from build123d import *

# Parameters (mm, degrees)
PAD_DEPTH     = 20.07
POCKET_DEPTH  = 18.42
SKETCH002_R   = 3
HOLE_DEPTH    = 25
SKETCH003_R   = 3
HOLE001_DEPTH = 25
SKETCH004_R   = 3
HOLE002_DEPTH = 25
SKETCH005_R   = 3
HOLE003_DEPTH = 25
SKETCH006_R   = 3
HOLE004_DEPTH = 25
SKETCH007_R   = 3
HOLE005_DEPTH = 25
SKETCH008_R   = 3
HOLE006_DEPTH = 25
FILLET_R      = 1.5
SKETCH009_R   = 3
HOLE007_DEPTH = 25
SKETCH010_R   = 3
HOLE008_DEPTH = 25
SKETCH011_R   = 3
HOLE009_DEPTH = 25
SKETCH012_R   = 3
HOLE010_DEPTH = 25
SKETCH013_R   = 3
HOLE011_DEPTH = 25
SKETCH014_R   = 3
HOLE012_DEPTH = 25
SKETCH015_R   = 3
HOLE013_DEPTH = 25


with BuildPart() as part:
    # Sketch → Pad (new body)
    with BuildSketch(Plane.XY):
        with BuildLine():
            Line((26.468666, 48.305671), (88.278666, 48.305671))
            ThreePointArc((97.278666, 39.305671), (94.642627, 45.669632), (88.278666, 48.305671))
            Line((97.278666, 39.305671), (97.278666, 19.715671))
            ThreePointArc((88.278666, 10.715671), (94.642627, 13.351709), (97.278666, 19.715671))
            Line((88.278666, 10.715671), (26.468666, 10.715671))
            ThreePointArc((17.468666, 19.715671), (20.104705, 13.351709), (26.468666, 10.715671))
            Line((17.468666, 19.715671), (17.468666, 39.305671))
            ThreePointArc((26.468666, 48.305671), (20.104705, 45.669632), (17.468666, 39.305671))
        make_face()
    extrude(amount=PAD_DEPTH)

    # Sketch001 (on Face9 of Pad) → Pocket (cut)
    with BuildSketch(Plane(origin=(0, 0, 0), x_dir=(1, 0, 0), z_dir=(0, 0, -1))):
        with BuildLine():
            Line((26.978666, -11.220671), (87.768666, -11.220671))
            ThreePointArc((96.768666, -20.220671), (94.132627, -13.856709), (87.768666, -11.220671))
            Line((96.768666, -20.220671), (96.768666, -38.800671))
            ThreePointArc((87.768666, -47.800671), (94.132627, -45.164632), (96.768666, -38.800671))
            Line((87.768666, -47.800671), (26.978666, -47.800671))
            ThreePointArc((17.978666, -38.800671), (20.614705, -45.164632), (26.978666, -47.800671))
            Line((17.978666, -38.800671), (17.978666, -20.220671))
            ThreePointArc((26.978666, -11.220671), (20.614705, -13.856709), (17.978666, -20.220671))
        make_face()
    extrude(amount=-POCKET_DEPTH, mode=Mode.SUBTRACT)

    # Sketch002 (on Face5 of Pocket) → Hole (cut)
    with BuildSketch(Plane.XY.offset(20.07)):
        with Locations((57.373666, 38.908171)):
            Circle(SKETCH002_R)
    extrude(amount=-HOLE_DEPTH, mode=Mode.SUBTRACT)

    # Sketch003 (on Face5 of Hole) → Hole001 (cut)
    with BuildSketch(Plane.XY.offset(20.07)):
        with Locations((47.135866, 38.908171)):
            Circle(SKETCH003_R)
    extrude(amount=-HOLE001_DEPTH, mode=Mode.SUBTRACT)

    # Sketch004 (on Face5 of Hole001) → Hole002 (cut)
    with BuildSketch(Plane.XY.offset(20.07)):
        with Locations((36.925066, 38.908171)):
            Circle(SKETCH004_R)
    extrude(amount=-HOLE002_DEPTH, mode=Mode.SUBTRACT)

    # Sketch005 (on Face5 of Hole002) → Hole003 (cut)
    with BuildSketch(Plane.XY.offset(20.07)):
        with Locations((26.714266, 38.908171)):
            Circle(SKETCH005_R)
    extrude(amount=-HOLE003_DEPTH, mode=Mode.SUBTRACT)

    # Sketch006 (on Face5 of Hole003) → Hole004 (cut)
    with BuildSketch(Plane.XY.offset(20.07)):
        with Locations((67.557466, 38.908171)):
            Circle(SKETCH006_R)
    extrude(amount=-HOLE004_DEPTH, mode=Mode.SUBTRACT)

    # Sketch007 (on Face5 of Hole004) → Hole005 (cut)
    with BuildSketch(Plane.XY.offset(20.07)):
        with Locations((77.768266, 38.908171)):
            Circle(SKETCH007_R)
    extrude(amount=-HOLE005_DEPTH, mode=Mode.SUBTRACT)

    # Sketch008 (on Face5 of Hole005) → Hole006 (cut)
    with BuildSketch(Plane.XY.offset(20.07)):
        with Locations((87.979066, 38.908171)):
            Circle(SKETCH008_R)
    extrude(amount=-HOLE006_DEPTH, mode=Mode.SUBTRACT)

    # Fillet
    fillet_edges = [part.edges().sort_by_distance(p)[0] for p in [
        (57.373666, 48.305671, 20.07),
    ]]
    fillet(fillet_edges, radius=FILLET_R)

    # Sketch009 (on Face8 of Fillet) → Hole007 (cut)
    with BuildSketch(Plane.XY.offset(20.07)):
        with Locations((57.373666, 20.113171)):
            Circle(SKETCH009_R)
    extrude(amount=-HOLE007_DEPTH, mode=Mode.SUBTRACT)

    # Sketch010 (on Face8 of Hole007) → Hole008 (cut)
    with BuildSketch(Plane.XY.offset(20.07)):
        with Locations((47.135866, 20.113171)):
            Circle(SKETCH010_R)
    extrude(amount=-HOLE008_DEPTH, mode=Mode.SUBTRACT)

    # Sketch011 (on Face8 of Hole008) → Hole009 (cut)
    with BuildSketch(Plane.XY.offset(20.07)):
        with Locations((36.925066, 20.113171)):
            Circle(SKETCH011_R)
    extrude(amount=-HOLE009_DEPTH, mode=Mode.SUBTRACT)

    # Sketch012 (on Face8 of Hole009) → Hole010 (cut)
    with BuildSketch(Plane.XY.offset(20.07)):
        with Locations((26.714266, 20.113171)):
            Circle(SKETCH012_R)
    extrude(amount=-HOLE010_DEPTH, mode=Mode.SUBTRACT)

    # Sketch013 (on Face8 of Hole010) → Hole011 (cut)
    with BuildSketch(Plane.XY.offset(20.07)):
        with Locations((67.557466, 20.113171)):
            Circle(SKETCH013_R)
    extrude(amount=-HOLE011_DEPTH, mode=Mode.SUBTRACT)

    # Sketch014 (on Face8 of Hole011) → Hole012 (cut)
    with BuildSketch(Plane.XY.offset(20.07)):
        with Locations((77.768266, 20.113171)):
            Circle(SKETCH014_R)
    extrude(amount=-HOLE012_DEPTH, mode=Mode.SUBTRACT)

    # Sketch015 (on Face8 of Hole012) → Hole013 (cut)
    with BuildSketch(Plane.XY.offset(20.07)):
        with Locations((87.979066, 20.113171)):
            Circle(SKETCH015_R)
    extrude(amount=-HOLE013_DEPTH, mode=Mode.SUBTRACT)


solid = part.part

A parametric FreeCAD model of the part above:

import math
import FreeCAD as App
import Part
import Sketcher
from FreeCAD import Vector
Q = App.Units.Quantity


def edges_at(feature, points):
    """Names of the edges that pass closest to the given points."""
    edges = feature.Shape.Edges
    near = lambda p: min(range(len(edges)), key=lambda i: edges[i].distToShape(Part.Vertex(*p))[0])
    return sorted({f"Edge{near(p) + 1}" for p in points})

doc = App.newDocument("Part")
body = doc.addObject("PartDesign::Body", "Body")

sketch1 = doc.addObject("Sketcher::SketchObject", "Sketch")
body.addObject(sketch1)
sketch1.AttachmentSupport = (doc.XY_Plane, [""])
sketch1.MapMode = "FlatFace"
sketch1.addGeometry([
    Part.LineSegment(Vector(88, 48, 0), Vector(26, 48, 0)),
    Part.ArcOfCircle(Part.Circle(Vector(26, 39, 0), Vector(0, 0, 1), 9), math.radians(90), math.radians(180)),
    Part.LineSegment(Vector(17, 39, 0), Vector(17, 20, 0)),
    Part.ArcOfCircle(Part.Circle(Vector(26, 20, 0), Vector(0, 0, 1), 9), math.radians(180), math.radians(270)),
    Part.LineSegment(Vector(26, 11, 0), Vector(88, 11, 0)),
    Part.ArcOfCircle(Part.Circle(Vector(88, 20, 0), Vector(0, 0, 1), 9), math.radians(-90), math.radians(0)),
    Part.LineSegment(Vector(97, 20, 0), Vector(97, 39, 0)),
    Part.ArcOfCircle(Part.Circle(Vector(88, 39, 0), Vector(0, 0, 1), 9), math.radians(0), math.radians(90)),
], False)
sketch1.addConstraint([
    Sketcher.Constraint("Tangent", 0, 2, 1, 1),
    Sketcher.Constraint("Tangent", 1, 2, 2, 1),
    Sketcher.Constraint("Tangent", 2, 2, 3, 1),
    Sketcher.Constraint("Tangent", 3, 2, 4, 1),
    Sketcher.Constraint("Tangent", 4, 2, 5, 1),
    Sketcher.Constraint("Tangent", 5, 2, 6, 1),
    Sketcher.Constraint("Tangent", 6, 2, 7, 1),
    Sketcher.Constraint("Tangent", 7, 2, 0, 1),
    Sketcher.Constraint("Horizontal", 0),
    Sketcher.Constraint("Vertical", 2),
    Sketcher.Constraint("Horizontal", 4),
    Sketcher.Constraint("Vertical", 6),
    Sketcher.Constraint("Equal", 1, 3),
    Sketcher.Constraint("Equal", 3, 5),
    Sketcher.Constraint("Equal", 5, 7),
    Sketcher.Constraint("Radius", 1, Q("9 mm")),
    Sketcher.Constraint("DistanceX", 0, 2, 0, 1, Q("61.81 mm")),
    Sketcher.Constraint("DistanceY", 2, 2, 2, 1, Q("19.59 mm")),
    Sketcher.Constraint("DistanceY", -1, 1, 1, 3, Q("39.305671 mm")),
    Sketcher.Constraint("DistanceX", -1, 1, 1, 3, Q("26.468666 mm")),
])
pad1 = doc.addObject("PartDesign::Pad", "Pad")
body.addObject(pad1)
pad1.Profile = sketch1
pad1.Length = 20.07

sketch2 = doc.addObject("Sketcher::SketchObject", "Sketch001")
body.addObject(sketch2)
sketch2.AttachmentSupport = (doc.XY_Plane, [""])
sketch2.MapMode = "FlatFace"
sketch2.addGeometry([
    Part.LineSegment(Vector(88, 11, 0), Vector(27, 11, 0)),
    Part.ArcOfCircle(Part.Circle(Vector(27, 20, 0), Vector(0, 0, 1), 9), math.radians(180), math.radians(270)),
    Part.LineSegment(Vector(18, 20, 0), Vector(18, 39, 0)),
    Part.ArcOfCircle(Part.Circle(Vector(27, 39, 0), Vector(0, 0, 1), 9), math.radians(90), math.radians(180)),
    Part.LineSegment(Vector(27, 48, 0), Vector(88, 48, 0)),
    Part.ArcOfCircle(Part.Circle(Vector(88, 39, 0), Vector(0, 0, 1), 9), math.radians(0), math.radians(90)),
    Part.LineSegment(Vector(97, 39, 0), Vector(97, 20, 0)),
    Part.ArcOfCircle(Part.Circle(Vector(88, 20, 0), Vector(0, 0, 1), 9), math.radians(-90), math.radians(0)),
], False)
sketch2.addConstraint([
    Sketcher.Constraint("Tangent", 0, 2, 1, 2),
    Sketcher.Constraint("Tangent", 1, 1, 2, 1),
    Sketcher.Constraint("Tangent", 2, 2, 3, 2),
    Sketcher.Constraint("Tangent", 3, 1, 4, 1),
    Sketcher.Constraint("Tangent", 4, 2, 5, 2),
    Sketcher.Constraint("Tangent", 5, 1, 6, 1),
    Sketcher.Constraint("Tangent", 6, 2, 7, 2),
    Sketcher.Constraint("Tangent", 7, 1, 0, 1),
    Sketcher.Constraint("Horizontal", 0),
    Sketcher.Constraint("Vertical", 2),
    Sketcher.Constraint("Horizontal", 4),
    Sketcher.Constraint("Vertical", 6),
    Sketcher.Constraint("Equal", 1, 3),
    Sketcher.Constraint("Equal", 3, 5),
    Sketcher.Constraint("Equal", 5, 7),
    Sketcher.Constraint("Radius", 1, Q("8.999998 mm")),
    Sketcher.Constraint("DistanceX", 0, 2, 0, 1, Q("60.79 mm")),
    Sketcher.Constraint("DistanceY", 2, 1, 2, 2, Q("18.58 mm")),
    Sketcher.Constraint("DistanceY", -1, 1, 1, 3, Q("20.220669 mm")),
    Sketcher.Constraint("DistanceX", -1, 1, 1, 3, Q("26.978664 mm")),
])
pocket1 = doc.addObject("PartDesign::Pocket", "Pocket")
body.addObject(pocket1)
pocket1.Profile = sketch2
pocket1.Length = 18.42
pocket1.Reversed = True

sketch3 = doc.addObject("Sketcher::SketchObject", "Sketch002")
body.addObject(sketch3)
sketch3.AttachmentSupport = (doc.XY_Plane, [""])
sketch3.MapMode = "FlatFace"
sketch3.AttachmentOffset = App.Placement(Vector(0, 0, 20.07), App.Rotation())
sketch3.addGeometry(Part.Circle(Vector(57.4, 38.9, 0), Vector(0, 0, 1), 3), False)
sketch3.addConstraint([
    Sketcher.Constraint("Diameter", 0, Q("6 mm")),
    Sketcher.Constraint("DistanceY", -1, 1, 0, 3, Q("38.908171 mm")),
    Sketcher.Constraint("DistanceX", -1, 1, 0, 3, Q("57.373666 mm")),
])
pocket2 = doc.addObject("PartDesign::Pocket", "Pocket001")
body.addObject(pocket2)
pocket2.Profile = sketch3
pocket2.Length = 25

sketch4 = doc.addObject("Sketcher::SketchObject", "Sketch003")
body.addObject(sketch4)
sketch4.AttachmentSupport = (doc.XY_Plane, [""])
sketch4.MapMode = "FlatFace"
sketch4.AttachmentOffset = App.Placement(Vector(0, 0, 20.07), App.Rotation())
sketch4.addGeometry(Part.Circle(Vector(47.1, 38.9, 0), Vector(0, 0, 1), 3), False)
sketch4.addConstraint([
    Sketcher.Constraint("Diameter", 0, Q("6 mm")),
    Sketcher.Constraint("DistanceY", -1, 1, 0, 3, Q("38.908171 mm")),
    Sketcher.Constraint("DistanceX", -1, 1, 0, 3, Q("47.135866 mm")),
])
pocket3 = doc.addObject("PartDesign::Pocket", "Pocket002")
body.addObject(pocket3)
pocket3.Profile = sketch4
pocket3.Length = 25

sketch5 = doc.addObject("Sketcher::SketchObject", "Sketch004")
body.addObject(sketch5)
sketch5.AttachmentSupport = (doc.XY_Plane, [""])
sketch5.MapMode = "FlatFace"
sketch5.AttachmentOffset = App.Placement(Vector(0, 0, 20.07), App.Rotation())
sketch5.addGeometry(Part.Circle(Vector(36.9, 38.9, 0), Vector(0, 0, 1), 3), False)
sketch5.addConstraint([
    Sketcher.Constraint("Diameter", 0, Q("6 mm")),
    Sketcher.Constraint("DistanceY", -1, 1, 0, 3, Q("38.908171 mm")),
    Sketcher.Constraint("DistanceX", -1, 1, 0, 3, Q("36.925066 mm")),
])
pocket4 = doc.addObject("PartDesign::Pocket", "Pocket003")
body.addObject(pocket4)
pocket4.Profile = sketch5
pocket4.Length = 25

sketch6 = doc.addObject("Sketcher::SketchObject", "Sketch005")
body.addObject(sketch6)
sketch6.AttachmentSupport = (doc.XY_Plane, [""])
sketch6.MapMode = "FlatFace"
sketch6.AttachmentOffset = App.Placement(Vector(0, 0, 20.07), App.Rotation())
sketch6.addGeometry(Part.Circle(Vector(26.7, 38.9, 0), Vector(0, 0, 1), 3), False)
sketch6.addConstraint([
    Sketcher.Constraint("Diameter", 0, Q("6 mm")),
    Sketcher.Constraint("DistanceY", -1, 1, 0, 3, Q("38.908171 mm")),
    Sketcher.Constraint("DistanceX", -1, 1, 0, 3, Q("26.714266 mm")),
])
pocket5 = doc.addObject("PartDesign::Pocket", "Pocket004")
body.addObject(pocket5)
pocket5.Profile = sketch6
pocket5.Length = 25

sketch7 = doc.addObject("Sketcher::SketchObject", "Sketch006")
body.addObject(sketch7)
sketch7.AttachmentSupport = (doc.XY_Plane, [""])
sketch7.MapMode = "FlatFace"
sketch7.AttachmentOffset = App.Placement(Vector(0, 0, 20.07), App.Rotation())
sketch7.addGeometry(Part.Circle(Vector(67.6, 38.9, 0), Vector(0, 0, 1), 3), False)
sketch7.addConstraint([
    Sketcher.Constraint("Diameter", 0, Q("6 mm")),
    Sketcher.Constraint("DistanceY", -1, 1, 0, 3, Q("38.908171 mm")),
    Sketcher.Constraint("DistanceX", -1, 1, 0, 3, Q("67.557466 mm")),
])
pocket6 = doc.addObject("PartDesign::Pocket", "Pocket005")
body.addObject(pocket6)
pocket6.Profile = sketch7
pocket6.Length = 25

sketch8 = doc.addObject("Sketcher::SketchObject", "Sketch007")
body.addObject(sketch8)
sketch8.AttachmentSupport = (doc.XY_Plane, [""])
sketch8.MapMode = "FlatFace"
sketch8.AttachmentOffset = App.Placement(Vector(0, 0, 20.07), App.Rotation())
sketch8.addGeometry(Part.Circle(Vector(77.8, 38.9, 0), Vector(0, 0, 1), 3), False)
sketch8.addConstraint([
    Sketcher.Constraint("Diameter", 0, Q("6 mm")),
    Sketcher.Constraint("DistanceY", -1, 1, 0, 3, Q("38.908171 mm")),
    Sketcher.Constraint("DistanceX", -1, 1, 0, 3, Q("77.768266 mm")),
])
pocket7 = doc.addObject("PartDesign::Pocket", "Pocket006")
body.addObject(pocket7)
pocket7.Profile = sketch8
pocket7.Length = 25

sketch9 = doc.addObject("Sketcher::SketchObject", "Sketch008")
body.addObject(sketch9)
sketch9.AttachmentSupport = (doc.XY_Plane, [""])
sketch9.MapMode = "FlatFace"
sketch9.AttachmentOffset = App.Placement(Vector(0, 0, 20.07), App.Rotation())
sketch9.addGeometry(Part.Circle(Vector(88, 38.9, 0), Vector(0, 0, 1), 3), False)
sketch9.addConstraint([
    Sketcher.Constraint("Diameter", 0, Q("6 mm")),
    Sketcher.Constraint("DistanceY", -1, 1, 0, 3, Q("38.908171 mm")),
    Sketcher.Constraint("DistanceX", -1, 1, 0, 3, Q("87.979066 mm")),
])
pocket8 = doc.addObject("PartDesign::Pocket", "Pocket007")
body.addObject(pocket8)
pocket8.Profile = sketch9
pocket8.Length = 25
doc.recompute()

fillet = doc.addObject("PartDesign::Fillet", "Fillet")
body.addObject(fillet)
fillet.Base = (pocket8, edges_at(pocket8, [(57.374, 48.306, 20.07)]))
fillet.Radius = 1.5

sketch10 = doc.addObject("Sketcher::SketchObject", "Sketch009")
body.addObject(sketch10)
sketch10.AttachmentSupport = (doc.XY_Plane, [""])
sketch10.MapMode = "FlatFace"
sketch10.AttachmentOffset = App.Placement(Vector(0, 0, 20.07), App.Rotation())
sketch10.addGeometry(Part.Circle(Vector(57.4, 20.1, 0), Vector(0, 0, 1), 3), False)
sketch10.addConstraint([
    Sketcher.Constraint("Diameter", 0, Q("6 mm")),
    Sketcher.Constraint("DistanceY", -1, 1, 0, 3, Q("20.113171 mm")),
    Sketcher.Constraint("DistanceX", -1, 1, 0, 3, Q("57.373666 mm")),
])
pocket9 = doc.addObject("PartDesign::Pocket", "Pocket008")
body.addObject(pocket9)
pocket9.Profile = sketch10
pocket9.Length = 25

sketch11 = doc.addObject("Sketcher::SketchObject", "Sketch010")
body.addObject(sketch11)
sketch11.AttachmentSupport = (doc.XY_Plane, [""])
sketch11.MapMode = "FlatFace"
sketch11.AttachmentOffset = App.Placement(Vector(0, 0, 20.07), App.Rotation())
sketch11.addGeometry(Part.Circle(Vector(47.1, 20.1, 0), Vector(0, 0, 1), 3), False)
sketch11.addConstraint([
    Sketcher.Constraint("Diameter", 0, Q("6 mm")),
    Sketcher.Constraint("DistanceY", -1, 1, 0, 3, Q("20.113171 mm")),
    Sketcher.Constraint("DistanceX", -1, 1, 0, 3, Q("47.135866 mm")),
])
pocket10 = doc.addObject("PartDesign::Pocket", "Pocket009")
body.addObject(pocket10)
pocket10.Profile = sketch11
pocket10.Length = 25

sketch12 = doc.addObject("Sketcher::SketchObject", "Sketch011")
body.addObject(sketch12)
sketch12.AttachmentSupport = (doc.XY_Plane, [""])
sketch12.MapMode = "FlatFace"
sketch12.AttachmentOffset = App.Placement(Vector(0, 0, 20.07), App.Rotation())
sketch12.addGeometry(Part.Circle(Vector(36.9, 20.1, 0), Vector(0, 0, 1), 3), False)
sketch12.addConstraint([
    Sketcher.Constraint("Diameter", 0, Q("6 mm")),
    Sketcher.Constraint("DistanceY", -1, 1, 0, 3, Q("20.113171 mm")),
    Sketcher.Constraint("DistanceX", -1, 1, 0, 3, Q("36.925066 mm")),
])
pocket11 = doc.addObject("PartDesign::Pocket", "Pocket010")
body.addObject(pocket11)
pocket11.Profile = sketch12
pocket11.Length = 25

sketch13 = doc.addObject("Sketcher::SketchObject", "Sketch012")
body.addObject(sketch13)
sketch13.AttachmentSupport = (doc.XY_Plane, [""])
sketch13.MapMode = "FlatFace"
sketch13.AttachmentOffset = App.Placement(Vector(0, 0, 20.07), App.Rotation())
sketch13.addGeometry(Part.Circle(Vector(26.7, 20.1, 0), Vector(0, 0, 1), 3), False)
sketch13.addConstraint([
    Sketcher.Constraint("Diameter", 0, Q("6 mm")),
    Sketcher.Constraint("DistanceY", -1, 1, 0, 3, Q("20.113171 mm")),
    Sketcher.Constraint("DistanceX", -1, 1, 0, 3, Q("26.714266 mm")),
])
pocket12 = doc.addObject("PartDesign::Pocket", "Pocket011")
body.addObject(pocket12)
pocket12.Profile = sketch13
pocket12.Length = 25

sketch14 = doc.addObject("Sketcher::SketchObject", "Sketch013")
body.addObject(sketch14)
sketch14.AttachmentSupport = (doc.XY_Plane, [""])
sketch14.MapMode = "FlatFace"
sketch14.AttachmentOffset = App.Placement(Vector(0, 0, 20.07), App.Rotation())
sketch14.addGeometry(Part.Circle(Vector(67.6, 20.1, 0), Vector(0, 0, 1), 3), False)
sketch14.addConstraint([
    Sketcher.Constraint("Diameter", 0, Q("6 mm")),
    Sketcher.Constraint("DistanceY", -1, 1, 0, 3, Q("20.113171 mm")),
    Sketcher.Constraint("DistanceX", -1, 1, 0, 3, Q("67.557466 mm")),
])
pocket13 = doc.addObject("PartDesign::Pocket", "Pocket012")
body.addObject(pocket13)
pocket13.Profile = sketch14
pocket13.Length = 25

sketch15 = doc.addObject("Sketcher::SketchObject", "Sketch014")
body.addObject(sketch15)
sketch15.AttachmentSupport = (doc.XY_Plane, [""])
sketch15.MapMode = "FlatFace"
sketch15.AttachmentOffset = App.Placement(Vector(0, 0, 20.07), App.Rotation())
sketch15.addGeometry(Part.Circle(Vector(77.8, 20.1, 0), Vector(0, 0, 1), 3), False)
sketch15.addConstraint([
    Sketcher.Constraint("Diameter", 0, Q("6 mm")),
    Sketcher.Constraint("DistanceY", -1, 1, 0, 3, Q("20.113171 mm")),
    Sketcher.Constraint("DistanceX", -1, 1, 0, 3, Q("77.768266 mm")),
])
pocket14 = doc.addObject("PartDesign::Pocket", "Pocket013")
body.addObject(pocket14)
pocket14.Profile = sketch15
pocket14.Length = 25

sketch16 = doc.addObject("Sketcher::SketchObject", "Sketch015")
body.addObject(sketch16)
sketch16.AttachmentSupport = (doc.XY_Plane, [""])
sketch16.MapMode = "FlatFace"
sketch16.AttachmentOffset = App.Placement(Vector(0, 0, 20.07), App.Rotation())
sketch16.addGeometry(Part.Circle(Vector(88, 20.1, 0), Vector(0, 0, 1), 3), False)
sketch16.addConstraint([
    Sketcher.Constraint("Diameter", 0, Q("6 mm")),
    Sketcher.Constraint("DistanceY", -1, 1, 0, 3, Q("20.113171 mm")),
    Sketcher.Constraint("DistanceX", -1, 1, 0, 3, Q("87.979066 mm")),
])
pocket15 = doc.addObject("PartDesign::Pocket", "Pocket014")
body.addObject(pocket15)
pocket15.Profile = sketch16
pocket15.Length = 25

doc.recompute()
